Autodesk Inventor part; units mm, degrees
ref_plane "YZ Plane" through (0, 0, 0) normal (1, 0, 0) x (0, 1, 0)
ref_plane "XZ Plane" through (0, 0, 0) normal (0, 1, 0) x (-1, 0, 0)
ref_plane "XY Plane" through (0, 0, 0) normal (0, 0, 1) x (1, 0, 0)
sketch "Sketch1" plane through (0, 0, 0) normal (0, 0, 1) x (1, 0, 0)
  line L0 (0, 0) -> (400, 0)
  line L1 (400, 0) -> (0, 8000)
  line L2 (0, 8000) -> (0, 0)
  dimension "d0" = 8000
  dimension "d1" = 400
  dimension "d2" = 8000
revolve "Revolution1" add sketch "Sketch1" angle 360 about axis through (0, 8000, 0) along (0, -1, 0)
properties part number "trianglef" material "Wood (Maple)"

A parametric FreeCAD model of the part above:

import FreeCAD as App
import Part
import Sketcher
Q = App.Units.Quantity

doc = App.newDocument("Part")
body = doc.addObject("PartDesign::Body", "Body")

sketch1 = body.newObject("Sketcher::SketchObject", "Sketch")
sketch1.AttachmentSupport = (doc.getObject("XY_Plane"), [""])
sketch1.MapMode = "FlatFace"
sketch1.addGeometry(Part.LineSegment(App.Vector(0, 8000, 0), App.Vector(0, 0, 0)), False)
sketch1.addGeometry(Part.LineSegment(App.Vector(0, 0, 0), App.Vector(400, 0, 0)), False)
sketch1.addGeometry(Part.LineSegment(App.Vector(400, 0, 0), App.Vector(0, 8000, 0)), False)
sketch1.addConstraint(Sketcher.Constraint("Coincident", 0, 2, 1, 1))
sketch1.addConstraint(Sketcher.Constraint("Coincident", 1, 2, 2, 1))
sketch1.addConstraint(Sketcher.Constraint("Coincident", 2, 2, 0, 1))
sketch1.addConstraint(Sketcher.Constraint("Vertical", 0))
sketch1.addConstraint(Sketcher.Constraint("Horizontal", 1))
sketch1.addConstraint(Sketcher.Constraint("Coincident", 0, 2, -1, 1))
sketch1.addConstraint(Sketcher.Constraint("DistanceX", 1, 1, 1, 2, Q("400 mm")))
sketch1.addConstraint(Sketcher.Constraint("DistanceY", 0, 2, 0, 1, Q("8000 mm")))
revolution = body.newObject("PartDesign::Revolution", "Revolution")
revolution.Profile = sketch1
revolution.ReferenceAxis = (sketch1, ["V_Axis"])
revolution.Angle = 360

doc.recompute()
